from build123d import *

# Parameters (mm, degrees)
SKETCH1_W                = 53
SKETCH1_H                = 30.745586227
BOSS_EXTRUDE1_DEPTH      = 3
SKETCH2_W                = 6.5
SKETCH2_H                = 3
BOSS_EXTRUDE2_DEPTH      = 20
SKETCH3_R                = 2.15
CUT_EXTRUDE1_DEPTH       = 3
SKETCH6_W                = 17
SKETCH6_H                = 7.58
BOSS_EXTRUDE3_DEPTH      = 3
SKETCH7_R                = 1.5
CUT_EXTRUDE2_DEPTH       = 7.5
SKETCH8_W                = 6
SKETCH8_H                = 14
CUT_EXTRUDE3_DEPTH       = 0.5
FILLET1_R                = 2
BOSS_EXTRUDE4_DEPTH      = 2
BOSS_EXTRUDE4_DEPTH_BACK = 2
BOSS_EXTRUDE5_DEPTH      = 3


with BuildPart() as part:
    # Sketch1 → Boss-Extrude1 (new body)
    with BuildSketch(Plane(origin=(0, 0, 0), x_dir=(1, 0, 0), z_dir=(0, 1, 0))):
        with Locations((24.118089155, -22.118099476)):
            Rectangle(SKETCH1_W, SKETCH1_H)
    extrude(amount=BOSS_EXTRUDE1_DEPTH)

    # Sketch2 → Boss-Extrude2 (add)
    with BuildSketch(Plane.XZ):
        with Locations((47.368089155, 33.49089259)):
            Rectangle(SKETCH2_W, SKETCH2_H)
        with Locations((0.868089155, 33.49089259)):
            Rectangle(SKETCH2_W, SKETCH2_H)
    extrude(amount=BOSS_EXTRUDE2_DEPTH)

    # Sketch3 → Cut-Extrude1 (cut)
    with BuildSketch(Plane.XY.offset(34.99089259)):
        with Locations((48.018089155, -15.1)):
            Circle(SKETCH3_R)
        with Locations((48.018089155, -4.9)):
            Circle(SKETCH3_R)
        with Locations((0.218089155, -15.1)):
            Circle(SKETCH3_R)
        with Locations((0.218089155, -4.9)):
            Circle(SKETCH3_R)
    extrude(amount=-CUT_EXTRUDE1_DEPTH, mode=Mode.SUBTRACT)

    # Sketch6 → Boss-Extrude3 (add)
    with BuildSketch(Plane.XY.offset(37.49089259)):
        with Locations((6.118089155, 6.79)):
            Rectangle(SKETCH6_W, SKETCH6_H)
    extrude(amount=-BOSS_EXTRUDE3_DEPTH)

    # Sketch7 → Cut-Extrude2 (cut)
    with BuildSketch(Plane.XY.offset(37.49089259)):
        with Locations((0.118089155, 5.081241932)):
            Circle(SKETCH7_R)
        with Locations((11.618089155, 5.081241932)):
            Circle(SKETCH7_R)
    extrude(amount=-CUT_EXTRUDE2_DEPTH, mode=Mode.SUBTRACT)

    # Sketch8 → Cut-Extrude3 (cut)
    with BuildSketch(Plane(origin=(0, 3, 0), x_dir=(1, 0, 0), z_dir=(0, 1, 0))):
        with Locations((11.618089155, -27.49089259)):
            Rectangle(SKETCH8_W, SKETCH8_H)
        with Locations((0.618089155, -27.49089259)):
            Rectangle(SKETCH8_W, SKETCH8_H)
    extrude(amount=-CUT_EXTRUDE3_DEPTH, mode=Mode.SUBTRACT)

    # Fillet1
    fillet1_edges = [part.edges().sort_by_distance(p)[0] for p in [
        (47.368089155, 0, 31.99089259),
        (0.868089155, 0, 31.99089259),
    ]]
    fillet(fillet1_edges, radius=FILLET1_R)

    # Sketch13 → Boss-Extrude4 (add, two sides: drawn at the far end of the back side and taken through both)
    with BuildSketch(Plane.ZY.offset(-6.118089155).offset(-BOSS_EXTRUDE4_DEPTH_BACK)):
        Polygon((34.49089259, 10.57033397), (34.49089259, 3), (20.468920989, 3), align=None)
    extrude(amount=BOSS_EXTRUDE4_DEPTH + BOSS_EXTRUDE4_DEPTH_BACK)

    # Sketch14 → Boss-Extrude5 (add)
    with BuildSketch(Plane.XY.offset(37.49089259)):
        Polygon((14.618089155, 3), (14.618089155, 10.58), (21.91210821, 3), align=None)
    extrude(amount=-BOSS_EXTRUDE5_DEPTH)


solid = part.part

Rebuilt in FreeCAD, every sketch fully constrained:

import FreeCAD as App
import Part
import Sketcher

V = App.Vector


def edges_at(feature, points):
    """Names of the edges that pass closest to the given points."""
    edges = feature.Shape.Edges
    near = lambda p: min(range(len(edges)), key=lambda i: edges[i].distToShape(Part.Vertex(*p))[0])
    return sorted({f"Edge{near(p) + 1}" for p in points})


def add_polygon(sketch, points):
    """Adds a closed chain of lines whose ends are joined by coincident constraints."""
    first, n = sketch.GeometryCount, len(points)
    for a, b in zip(points, points[1:] + points[:1]):
        sketch.addGeometry(Part.LineSegment(App.Vector(*a, 0), App.Vector(*b, 0)), False)
    for i in range(n):
        sketch.addConstraint(Sketcher.Constraint("Coincident", first + i, 2, first + (i + 1) % n, 1))

doc = App.newDocument("Part")
body = doc.addObject("PartDesign::Body", "Body")

sketch1 = body.newObject("Sketcher::SketchObject", "Sketch")
sketch1.AttachmentSupport = (doc.getObject("XZ_Plane"), [""])
sketch1.MapMode = "FlatFace"
add_polygon(sketch1, [(-2, 7), (-2, 37), (51, 37), (51, 7)])
sketch1.addConstraint(Sketcher.Constraint("Vertical", 0))
sketch1.addConstraint(Sketcher.Constraint("Horizontal", 1))
sketch1.addConstraint(Sketcher.Constraint("Vertical", 2))
sketch1.addConstraint(Sketcher.Constraint("Horizontal", 3))
sketch1.addConstraint(Sketcher.Constraint("DistanceX", 1, 1, 1, 2, 53.0))
sketch1.addConstraint(Sketcher.Constraint("DistanceY", 0, 1, 0, 2, 30.745586))
sketch1.addConstraint(Sketcher.Constraint("DistanceX", 0, 2, -1, 1, 2.381911))
sketch1.addConstraint(Sketcher.Constraint("DistanceY", -1, 1, 0, 2, 37.490893))
pad1 = body.newObject("PartDesign::Pad", "Pad")
pad1.Profile = sketch1
pad1.Length = 3
pad1.Reversed = True

sketch2 = body.newObject("Sketcher::SketchObject", "Sketch001")
sketch2.AttachmentSupport = (doc.getObject("XZ_Plane"), [""])
sketch2.MapMode = "FlatFace"
add_polygon(sketch2, [(44.1, 35), (44.1, 32), (50.6, 32), (50.6, 35)])
add_polygon(sketch2, [(-2.4, 35), (-2.4, 32), (4.1, 32), (4.1, 35)])
sketch2.addConstraint(Sketcher.Constraint("Vertical", 0))
sketch2.addConstraint(Sketcher.Constraint("Horizontal", 1))
sketch2.addConstraint(Sketcher.Constraint("Vertical", 2))
sketch2.addConstraint(Sketcher.Constraint("Horizontal", 3))
sketch2.addConstraint(Sketcher.Constraint("Vertical", 4))
sketch2.addConstraint(Sketcher.Constraint("Horizontal", 5))
sketch2.addConstraint(Sketcher.Constraint("Vertical", 6))
sketch2.addConstraint(Sketcher.Constraint("Horizontal", 7))
sketch2.addConstraint(Sketcher.Constraint("Horizontal", 1, 2, 4, 2))
sketch2.addConstraint(Sketcher.Constraint("Horizontal", 3, 2, 6, 2))
sketch2.addConstraint(Sketcher.Constraint("Equal", 3, 5))
sketch2.addConstraint(Sketcher.Constraint("DistanceY", 0, 2, 0, 1, 3.0))
sketch2.addConstraint(Sketcher.Constraint("DistanceX", 1, 1, 1, 2, 6.5))
sketch2.addConstraint(Sketcher.Constraint("DistanceX", 4, 2, 1, 2, 53.0))
sketch2.addConstraint(Sketcher.Constraint("DistanceX", -1, 1, 0, 2, 44.118089))
sketch2.addConstraint(Sketcher.Constraint("DistanceY", -1, 1, 0, 2, 31.990893))
pad2 = body.newObject("PartDesign::Pad", "Pad001")
pad2.Profile = sketch2
pad2.Length = 20

sketch3 = body.newObject("Sketcher::SketchObject", "Sketch002")
sketch3.AttachmentSupport = (doc.getObject("XY_Plane"), [""])
sketch3.MapMode = "FlatFace"
sketch3.AttachmentOffset = App.Placement(V(0, 0, 34.990893), App.Rotation())
sketch3.addGeometry(Part.Circle(V(48, -15.1, 0), V(0, 0, 1), 2.1), False)
sketch3.addGeometry(Part.Circle(V(48, -4.9, 0), V(0, 0, 1), 2.1), False)
sketch3.addGeometry(Part.Circle(V(0.2, -15.1, 0), V(0, 0, 1), 2.1), False)
sketch3.addGeometry(Part.Circle(V(0.2, -4.9, 0), V(0, 0, 1), 2.1), False)
sketch3.addConstraint(Sketcher.Constraint("Equal", 0, 1))
sketch3.addConstraint(Sketcher.Constraint("Equal", 1, 2))
sketch3.addConstraint(Sketcher.Constraint("Equal", 2, 3))
sketch3.addConstraint(Sketcher.Constraint("Horizontal", 0, 3, 2, 3))
sketch3.addConstraint(Sketcher.Constraint("Horizontal", 1, 3, 3, 3))
sketch3.addConstraint(Sketcher.Constraint("Vertical", 0, 3, 1, 3))
sketch3.addConstraint(Sketcher.Constraint("Vertical", 2, 3, 3, 3))
sketch3.addConstraint(Sketcher.Constraint("Diameter", 0, 4.3))
sketch3.addConstraint(Sketcher.Constraint("DistanceY", 0, 3, -1, 1, 15.1))
sketch3.addConstraint(Sketcher.Constraint("DistanceY", 1, 3, -1, 1, 4.9))
sketch3.addConstraint(Sketcher.Constraint("DistanceX", 2, 3, 0, 3, 47.8))
sketch3.addConstraint(Sketcher.Constraint("DistanceX", -1, 1, 0, 3, 48.018089))
pocket1 = body.newObject("PartDesign::Pocket", "Pocket")
pocket1.Profile = sketch3
pocket1.Length = 3

sketch4 = body.newObject("Sketcher::SketchObject", "Sketch003")
sketch4.AttachmentSupport = (doc.getObject("XY_Plane"), [""])
sketch4.MapMode = "FlatFace"
sketch4.AttachmentOffset = App.Placement(V(0, 0, 37.490893), App.Rotation())
add_polygon(sketch4, [(-2, 11), (-2, 3), (15, 3), (15, 11)])
sketch4.addConstraint(Sketcher.Constraint("Vertical", 0))
sketch4.addConstraint(Sketcher.Constraint("Horizontal", 1))
sketch4.addConstraint(Sketcher.Constraint("Vertical", 2))
sketch4.addConstraint(Sketcher.Constraint("Horizontal", 3))
sketch4.addConstraint(Sketcher.Constraint("DistanceX", 1, 1, 1, 2, 17.0))
sketch4.addConstraint(Sketcher.Constraint("DistanceY", -1, 1, 0, 2, 3.0))
sketch4.addConstraint(Sketcher.Constraint("DistanceY", 0, 2, 0, 1, 7.58))
sketch4.addConstraint(Sketcher.Constraint("DistanceX", 0, 2, -1, 1, 2.381911))
pad3 = body.newObject("PartDesign::Pad", "Pad002")
pad3.Profile = sketch4
pad3.Length = 3
pad3.Reversed = True

sketch5 = body.newObject("Sketcher::SketchObject", "Sketch004")
sketch5.AttachmentSupport = (doc.getObject("XY_Plane"), [""])
sketch5.MapMode = "FlatFace"
sketch5.AttachmentOffset = App.Placement(V(0, 0, 37.490893), App.Rotation())
sketch5.addGeometry(Part.Circle(V(0.1, 5.1, 0), V(0, 0, 1), 1.5), False)
sketch5.addGeometry(Part.Circle(V(11.6, 5.1, 0), V(0, 0, 1), 1.5), False)
sketch5.addConstraint(Sketcher.Constraint("Equal", 0, 1))
sketch5.addConstraint(Sketcher.Constraint("Horizontal", 0, 3, 1, 3))
sketch5.addConstraint(Sketcher.Constraint("Diameter", 0, 3.0))
sketch5.addConstraint(Sketcher.Constraint("DistanceX", 0, 3, 1, 3, 11.5))
sketch5.addConstraint(Sketcher.Constraint("DistanceX", -1, 1, 0, 3, 0.118089))
sketch5.addConstraint(Sketcher.Constraint("DistanceY", -1, 1, 0, 3, 5.081242))
pocket2 = body.newObject("PartDesign::Pocket", "Pocket001")
pocket2.Profile = sketch5
pocket2.Length = 7.5

sketch6 = body.newObject("Sketcher::SketchObject", "Sketch005")
sketch6.AttachmentSupport = (doc.getObject("XZ_Plane"), [""])
sketch6.MapMode = "FlatFace"
sketch6.AttachmentOffset = App.Placement(V(0, 0, -3), App.Rotation())
add_polygon(sketch6, [(9, 20), (9, 34), (15, 34), (15, 20)])
add_polygon(sketch6, [(-2, 20), (-2, 34), (4, 34), (4, 20)])
sketch6.addConstraint(Sketcher.Constraint("Vertical", 0))
sketch6.addConstraint(Sketcher.Constraint("Horizontal", 1))
sketch6.addConstraint(Sketcher.Constraint("Vertical", 2))
sketch6.addConstraint(Sketcher.Constraint("Horizontal", 3))
sketch6.addConstraint(Sketcher.Constraint("Vertical", 4))
sketch6.addConstraint(Sketcher.Constraint("Horizontal", 5))
sketch6.addConstraint(Sketcher.Constraint("Vertical", 6))
sketch6.addConstraint(Sketcher.Constraint("Horizontal", 7))
sketch6.addConstraint(Sketcher.Constraint("Horizontal", 1, 2, 4, 2))
sketch6.addConstraint(Sketcher.Constraint("Horizontal", 3, 2, 6, 2))
sketch6.addConstraint(Sketcher.Constraint("Equal", 3, 5))
sketch6.addConstraint(Sketcher.Constraint("DistanceX", 1, 1, 1, 2, 6.0))
sketch6.addConstraint(Sketcher.Constraint("DistanceY", 0, 1, 0, 2, 14.0))
sketch6.addConstraint(Sketcher.Constraint("DistanceX", 4, 2, 0, 2, 11.0))
sketch6.addConstraint(Sketcher.Constraint("DistanceX", -1, 1, 0, 2, 8.618089))
sketch6.addConstraint(Sketcher.Constraint("DistanceY", -1, 1, 0, 2, 34.490893))
pocket3 = body.newObject("PartDesign::Pocket", "Pocket002")
pocket3.Profile = sketch6
pocket3.Length = 0.5
pocket3.Reversed = True
doc.recompute()

fillet = body.newObject("PartDesign::Fillet", "Fillet")
fillet.Base = (pocket3, edges_at(pocket3, [(47.368, 0, 31.991), (0.868, 0, 31.991)]))
fillet.Radius = 2

sketch7 = body.newObject("Sketcher::SketchObject", "Sketch006")
sketch7.AttachmentSupport = (doc.getObject("YZ_Plane"), [""])
sketch7.MapMode = "FlatFace"
sketch7.AttachmentOffset = App.Placement(V(0, 0, 6.118089), App.Rotation())
add_polygon(sketch7, [(3, 34), (11, 34), (3, 20)])
sketch7.addConstraint(Sketcher.Constraint("Horizontal", 0))
sketch7.addConstraint(Sketcher.Constraint("Vertical", 2))
sketch7.addConstraint(Sketcher.Constraint("DistanceX", -1, 1, 1, 2, 3.0))
sketch7.addConstraint(Sketcher.Constraint("DistanceY", 2, 1, 2, 2, 14.021972))
sketch7.addConstraint(Sketcher.Constraint("DistanceX", 0, 1, 0, 2, 7.570334))
sketch7.addConstraint(Sketcher.Constraint("DistanceY", -1, 1, 1, 2, 20.468921))
pad4 = body.newObject("PartDesign::Pad", "Pad003")
pad4.Profile = sketch7
pad4.Type = "TwoLengths"
pad4.Length = 2
pad4.Length2 = 2
pad4.Reversed = True

sketch8 = body.newObject("Sketcher::SketchObject", "Sketch007")
sketch8.AttachmentSupport = (doc.getObject("XY_Plane"), [""])
sketch8.MapMode = "FlatFace"
sketch8.AttachmentOffset = App.Placement(V(0, 0, 37.490893), App.Rotation())
add_polygon(sketch8, [(15, 11), (15, 3), (22, 3)])
sketch8.addConstraint(Sketcher.Constraint("Vertical", 0))
sketch8.addConstraint(Sketcher.Constraint("Horizontal", 1))
sketch8.addConstraint(Sketcher.Constraint("DistanceY", -1, 1, 0, 2, 3.0))
sketch8.addConstraint(Sketcher.Constraint("DistanceY", 0, 2, 0, 1, 7.58))
sketch8.addConstraint(Sketcher.Constraint("DistanceX", 1, 1, 1, 2, 7.294019))
sketch8.addConstraint(Sketcher.Constraint("DistanceX", -1, 1, 0, 2, 14.618089))
pad5 = body.newObject("PartDesign::Pad", "Pad004")
pad5.Profile = sketch8
pad5.Length = 3
pad5.Reversed = True

doc.recompute()
